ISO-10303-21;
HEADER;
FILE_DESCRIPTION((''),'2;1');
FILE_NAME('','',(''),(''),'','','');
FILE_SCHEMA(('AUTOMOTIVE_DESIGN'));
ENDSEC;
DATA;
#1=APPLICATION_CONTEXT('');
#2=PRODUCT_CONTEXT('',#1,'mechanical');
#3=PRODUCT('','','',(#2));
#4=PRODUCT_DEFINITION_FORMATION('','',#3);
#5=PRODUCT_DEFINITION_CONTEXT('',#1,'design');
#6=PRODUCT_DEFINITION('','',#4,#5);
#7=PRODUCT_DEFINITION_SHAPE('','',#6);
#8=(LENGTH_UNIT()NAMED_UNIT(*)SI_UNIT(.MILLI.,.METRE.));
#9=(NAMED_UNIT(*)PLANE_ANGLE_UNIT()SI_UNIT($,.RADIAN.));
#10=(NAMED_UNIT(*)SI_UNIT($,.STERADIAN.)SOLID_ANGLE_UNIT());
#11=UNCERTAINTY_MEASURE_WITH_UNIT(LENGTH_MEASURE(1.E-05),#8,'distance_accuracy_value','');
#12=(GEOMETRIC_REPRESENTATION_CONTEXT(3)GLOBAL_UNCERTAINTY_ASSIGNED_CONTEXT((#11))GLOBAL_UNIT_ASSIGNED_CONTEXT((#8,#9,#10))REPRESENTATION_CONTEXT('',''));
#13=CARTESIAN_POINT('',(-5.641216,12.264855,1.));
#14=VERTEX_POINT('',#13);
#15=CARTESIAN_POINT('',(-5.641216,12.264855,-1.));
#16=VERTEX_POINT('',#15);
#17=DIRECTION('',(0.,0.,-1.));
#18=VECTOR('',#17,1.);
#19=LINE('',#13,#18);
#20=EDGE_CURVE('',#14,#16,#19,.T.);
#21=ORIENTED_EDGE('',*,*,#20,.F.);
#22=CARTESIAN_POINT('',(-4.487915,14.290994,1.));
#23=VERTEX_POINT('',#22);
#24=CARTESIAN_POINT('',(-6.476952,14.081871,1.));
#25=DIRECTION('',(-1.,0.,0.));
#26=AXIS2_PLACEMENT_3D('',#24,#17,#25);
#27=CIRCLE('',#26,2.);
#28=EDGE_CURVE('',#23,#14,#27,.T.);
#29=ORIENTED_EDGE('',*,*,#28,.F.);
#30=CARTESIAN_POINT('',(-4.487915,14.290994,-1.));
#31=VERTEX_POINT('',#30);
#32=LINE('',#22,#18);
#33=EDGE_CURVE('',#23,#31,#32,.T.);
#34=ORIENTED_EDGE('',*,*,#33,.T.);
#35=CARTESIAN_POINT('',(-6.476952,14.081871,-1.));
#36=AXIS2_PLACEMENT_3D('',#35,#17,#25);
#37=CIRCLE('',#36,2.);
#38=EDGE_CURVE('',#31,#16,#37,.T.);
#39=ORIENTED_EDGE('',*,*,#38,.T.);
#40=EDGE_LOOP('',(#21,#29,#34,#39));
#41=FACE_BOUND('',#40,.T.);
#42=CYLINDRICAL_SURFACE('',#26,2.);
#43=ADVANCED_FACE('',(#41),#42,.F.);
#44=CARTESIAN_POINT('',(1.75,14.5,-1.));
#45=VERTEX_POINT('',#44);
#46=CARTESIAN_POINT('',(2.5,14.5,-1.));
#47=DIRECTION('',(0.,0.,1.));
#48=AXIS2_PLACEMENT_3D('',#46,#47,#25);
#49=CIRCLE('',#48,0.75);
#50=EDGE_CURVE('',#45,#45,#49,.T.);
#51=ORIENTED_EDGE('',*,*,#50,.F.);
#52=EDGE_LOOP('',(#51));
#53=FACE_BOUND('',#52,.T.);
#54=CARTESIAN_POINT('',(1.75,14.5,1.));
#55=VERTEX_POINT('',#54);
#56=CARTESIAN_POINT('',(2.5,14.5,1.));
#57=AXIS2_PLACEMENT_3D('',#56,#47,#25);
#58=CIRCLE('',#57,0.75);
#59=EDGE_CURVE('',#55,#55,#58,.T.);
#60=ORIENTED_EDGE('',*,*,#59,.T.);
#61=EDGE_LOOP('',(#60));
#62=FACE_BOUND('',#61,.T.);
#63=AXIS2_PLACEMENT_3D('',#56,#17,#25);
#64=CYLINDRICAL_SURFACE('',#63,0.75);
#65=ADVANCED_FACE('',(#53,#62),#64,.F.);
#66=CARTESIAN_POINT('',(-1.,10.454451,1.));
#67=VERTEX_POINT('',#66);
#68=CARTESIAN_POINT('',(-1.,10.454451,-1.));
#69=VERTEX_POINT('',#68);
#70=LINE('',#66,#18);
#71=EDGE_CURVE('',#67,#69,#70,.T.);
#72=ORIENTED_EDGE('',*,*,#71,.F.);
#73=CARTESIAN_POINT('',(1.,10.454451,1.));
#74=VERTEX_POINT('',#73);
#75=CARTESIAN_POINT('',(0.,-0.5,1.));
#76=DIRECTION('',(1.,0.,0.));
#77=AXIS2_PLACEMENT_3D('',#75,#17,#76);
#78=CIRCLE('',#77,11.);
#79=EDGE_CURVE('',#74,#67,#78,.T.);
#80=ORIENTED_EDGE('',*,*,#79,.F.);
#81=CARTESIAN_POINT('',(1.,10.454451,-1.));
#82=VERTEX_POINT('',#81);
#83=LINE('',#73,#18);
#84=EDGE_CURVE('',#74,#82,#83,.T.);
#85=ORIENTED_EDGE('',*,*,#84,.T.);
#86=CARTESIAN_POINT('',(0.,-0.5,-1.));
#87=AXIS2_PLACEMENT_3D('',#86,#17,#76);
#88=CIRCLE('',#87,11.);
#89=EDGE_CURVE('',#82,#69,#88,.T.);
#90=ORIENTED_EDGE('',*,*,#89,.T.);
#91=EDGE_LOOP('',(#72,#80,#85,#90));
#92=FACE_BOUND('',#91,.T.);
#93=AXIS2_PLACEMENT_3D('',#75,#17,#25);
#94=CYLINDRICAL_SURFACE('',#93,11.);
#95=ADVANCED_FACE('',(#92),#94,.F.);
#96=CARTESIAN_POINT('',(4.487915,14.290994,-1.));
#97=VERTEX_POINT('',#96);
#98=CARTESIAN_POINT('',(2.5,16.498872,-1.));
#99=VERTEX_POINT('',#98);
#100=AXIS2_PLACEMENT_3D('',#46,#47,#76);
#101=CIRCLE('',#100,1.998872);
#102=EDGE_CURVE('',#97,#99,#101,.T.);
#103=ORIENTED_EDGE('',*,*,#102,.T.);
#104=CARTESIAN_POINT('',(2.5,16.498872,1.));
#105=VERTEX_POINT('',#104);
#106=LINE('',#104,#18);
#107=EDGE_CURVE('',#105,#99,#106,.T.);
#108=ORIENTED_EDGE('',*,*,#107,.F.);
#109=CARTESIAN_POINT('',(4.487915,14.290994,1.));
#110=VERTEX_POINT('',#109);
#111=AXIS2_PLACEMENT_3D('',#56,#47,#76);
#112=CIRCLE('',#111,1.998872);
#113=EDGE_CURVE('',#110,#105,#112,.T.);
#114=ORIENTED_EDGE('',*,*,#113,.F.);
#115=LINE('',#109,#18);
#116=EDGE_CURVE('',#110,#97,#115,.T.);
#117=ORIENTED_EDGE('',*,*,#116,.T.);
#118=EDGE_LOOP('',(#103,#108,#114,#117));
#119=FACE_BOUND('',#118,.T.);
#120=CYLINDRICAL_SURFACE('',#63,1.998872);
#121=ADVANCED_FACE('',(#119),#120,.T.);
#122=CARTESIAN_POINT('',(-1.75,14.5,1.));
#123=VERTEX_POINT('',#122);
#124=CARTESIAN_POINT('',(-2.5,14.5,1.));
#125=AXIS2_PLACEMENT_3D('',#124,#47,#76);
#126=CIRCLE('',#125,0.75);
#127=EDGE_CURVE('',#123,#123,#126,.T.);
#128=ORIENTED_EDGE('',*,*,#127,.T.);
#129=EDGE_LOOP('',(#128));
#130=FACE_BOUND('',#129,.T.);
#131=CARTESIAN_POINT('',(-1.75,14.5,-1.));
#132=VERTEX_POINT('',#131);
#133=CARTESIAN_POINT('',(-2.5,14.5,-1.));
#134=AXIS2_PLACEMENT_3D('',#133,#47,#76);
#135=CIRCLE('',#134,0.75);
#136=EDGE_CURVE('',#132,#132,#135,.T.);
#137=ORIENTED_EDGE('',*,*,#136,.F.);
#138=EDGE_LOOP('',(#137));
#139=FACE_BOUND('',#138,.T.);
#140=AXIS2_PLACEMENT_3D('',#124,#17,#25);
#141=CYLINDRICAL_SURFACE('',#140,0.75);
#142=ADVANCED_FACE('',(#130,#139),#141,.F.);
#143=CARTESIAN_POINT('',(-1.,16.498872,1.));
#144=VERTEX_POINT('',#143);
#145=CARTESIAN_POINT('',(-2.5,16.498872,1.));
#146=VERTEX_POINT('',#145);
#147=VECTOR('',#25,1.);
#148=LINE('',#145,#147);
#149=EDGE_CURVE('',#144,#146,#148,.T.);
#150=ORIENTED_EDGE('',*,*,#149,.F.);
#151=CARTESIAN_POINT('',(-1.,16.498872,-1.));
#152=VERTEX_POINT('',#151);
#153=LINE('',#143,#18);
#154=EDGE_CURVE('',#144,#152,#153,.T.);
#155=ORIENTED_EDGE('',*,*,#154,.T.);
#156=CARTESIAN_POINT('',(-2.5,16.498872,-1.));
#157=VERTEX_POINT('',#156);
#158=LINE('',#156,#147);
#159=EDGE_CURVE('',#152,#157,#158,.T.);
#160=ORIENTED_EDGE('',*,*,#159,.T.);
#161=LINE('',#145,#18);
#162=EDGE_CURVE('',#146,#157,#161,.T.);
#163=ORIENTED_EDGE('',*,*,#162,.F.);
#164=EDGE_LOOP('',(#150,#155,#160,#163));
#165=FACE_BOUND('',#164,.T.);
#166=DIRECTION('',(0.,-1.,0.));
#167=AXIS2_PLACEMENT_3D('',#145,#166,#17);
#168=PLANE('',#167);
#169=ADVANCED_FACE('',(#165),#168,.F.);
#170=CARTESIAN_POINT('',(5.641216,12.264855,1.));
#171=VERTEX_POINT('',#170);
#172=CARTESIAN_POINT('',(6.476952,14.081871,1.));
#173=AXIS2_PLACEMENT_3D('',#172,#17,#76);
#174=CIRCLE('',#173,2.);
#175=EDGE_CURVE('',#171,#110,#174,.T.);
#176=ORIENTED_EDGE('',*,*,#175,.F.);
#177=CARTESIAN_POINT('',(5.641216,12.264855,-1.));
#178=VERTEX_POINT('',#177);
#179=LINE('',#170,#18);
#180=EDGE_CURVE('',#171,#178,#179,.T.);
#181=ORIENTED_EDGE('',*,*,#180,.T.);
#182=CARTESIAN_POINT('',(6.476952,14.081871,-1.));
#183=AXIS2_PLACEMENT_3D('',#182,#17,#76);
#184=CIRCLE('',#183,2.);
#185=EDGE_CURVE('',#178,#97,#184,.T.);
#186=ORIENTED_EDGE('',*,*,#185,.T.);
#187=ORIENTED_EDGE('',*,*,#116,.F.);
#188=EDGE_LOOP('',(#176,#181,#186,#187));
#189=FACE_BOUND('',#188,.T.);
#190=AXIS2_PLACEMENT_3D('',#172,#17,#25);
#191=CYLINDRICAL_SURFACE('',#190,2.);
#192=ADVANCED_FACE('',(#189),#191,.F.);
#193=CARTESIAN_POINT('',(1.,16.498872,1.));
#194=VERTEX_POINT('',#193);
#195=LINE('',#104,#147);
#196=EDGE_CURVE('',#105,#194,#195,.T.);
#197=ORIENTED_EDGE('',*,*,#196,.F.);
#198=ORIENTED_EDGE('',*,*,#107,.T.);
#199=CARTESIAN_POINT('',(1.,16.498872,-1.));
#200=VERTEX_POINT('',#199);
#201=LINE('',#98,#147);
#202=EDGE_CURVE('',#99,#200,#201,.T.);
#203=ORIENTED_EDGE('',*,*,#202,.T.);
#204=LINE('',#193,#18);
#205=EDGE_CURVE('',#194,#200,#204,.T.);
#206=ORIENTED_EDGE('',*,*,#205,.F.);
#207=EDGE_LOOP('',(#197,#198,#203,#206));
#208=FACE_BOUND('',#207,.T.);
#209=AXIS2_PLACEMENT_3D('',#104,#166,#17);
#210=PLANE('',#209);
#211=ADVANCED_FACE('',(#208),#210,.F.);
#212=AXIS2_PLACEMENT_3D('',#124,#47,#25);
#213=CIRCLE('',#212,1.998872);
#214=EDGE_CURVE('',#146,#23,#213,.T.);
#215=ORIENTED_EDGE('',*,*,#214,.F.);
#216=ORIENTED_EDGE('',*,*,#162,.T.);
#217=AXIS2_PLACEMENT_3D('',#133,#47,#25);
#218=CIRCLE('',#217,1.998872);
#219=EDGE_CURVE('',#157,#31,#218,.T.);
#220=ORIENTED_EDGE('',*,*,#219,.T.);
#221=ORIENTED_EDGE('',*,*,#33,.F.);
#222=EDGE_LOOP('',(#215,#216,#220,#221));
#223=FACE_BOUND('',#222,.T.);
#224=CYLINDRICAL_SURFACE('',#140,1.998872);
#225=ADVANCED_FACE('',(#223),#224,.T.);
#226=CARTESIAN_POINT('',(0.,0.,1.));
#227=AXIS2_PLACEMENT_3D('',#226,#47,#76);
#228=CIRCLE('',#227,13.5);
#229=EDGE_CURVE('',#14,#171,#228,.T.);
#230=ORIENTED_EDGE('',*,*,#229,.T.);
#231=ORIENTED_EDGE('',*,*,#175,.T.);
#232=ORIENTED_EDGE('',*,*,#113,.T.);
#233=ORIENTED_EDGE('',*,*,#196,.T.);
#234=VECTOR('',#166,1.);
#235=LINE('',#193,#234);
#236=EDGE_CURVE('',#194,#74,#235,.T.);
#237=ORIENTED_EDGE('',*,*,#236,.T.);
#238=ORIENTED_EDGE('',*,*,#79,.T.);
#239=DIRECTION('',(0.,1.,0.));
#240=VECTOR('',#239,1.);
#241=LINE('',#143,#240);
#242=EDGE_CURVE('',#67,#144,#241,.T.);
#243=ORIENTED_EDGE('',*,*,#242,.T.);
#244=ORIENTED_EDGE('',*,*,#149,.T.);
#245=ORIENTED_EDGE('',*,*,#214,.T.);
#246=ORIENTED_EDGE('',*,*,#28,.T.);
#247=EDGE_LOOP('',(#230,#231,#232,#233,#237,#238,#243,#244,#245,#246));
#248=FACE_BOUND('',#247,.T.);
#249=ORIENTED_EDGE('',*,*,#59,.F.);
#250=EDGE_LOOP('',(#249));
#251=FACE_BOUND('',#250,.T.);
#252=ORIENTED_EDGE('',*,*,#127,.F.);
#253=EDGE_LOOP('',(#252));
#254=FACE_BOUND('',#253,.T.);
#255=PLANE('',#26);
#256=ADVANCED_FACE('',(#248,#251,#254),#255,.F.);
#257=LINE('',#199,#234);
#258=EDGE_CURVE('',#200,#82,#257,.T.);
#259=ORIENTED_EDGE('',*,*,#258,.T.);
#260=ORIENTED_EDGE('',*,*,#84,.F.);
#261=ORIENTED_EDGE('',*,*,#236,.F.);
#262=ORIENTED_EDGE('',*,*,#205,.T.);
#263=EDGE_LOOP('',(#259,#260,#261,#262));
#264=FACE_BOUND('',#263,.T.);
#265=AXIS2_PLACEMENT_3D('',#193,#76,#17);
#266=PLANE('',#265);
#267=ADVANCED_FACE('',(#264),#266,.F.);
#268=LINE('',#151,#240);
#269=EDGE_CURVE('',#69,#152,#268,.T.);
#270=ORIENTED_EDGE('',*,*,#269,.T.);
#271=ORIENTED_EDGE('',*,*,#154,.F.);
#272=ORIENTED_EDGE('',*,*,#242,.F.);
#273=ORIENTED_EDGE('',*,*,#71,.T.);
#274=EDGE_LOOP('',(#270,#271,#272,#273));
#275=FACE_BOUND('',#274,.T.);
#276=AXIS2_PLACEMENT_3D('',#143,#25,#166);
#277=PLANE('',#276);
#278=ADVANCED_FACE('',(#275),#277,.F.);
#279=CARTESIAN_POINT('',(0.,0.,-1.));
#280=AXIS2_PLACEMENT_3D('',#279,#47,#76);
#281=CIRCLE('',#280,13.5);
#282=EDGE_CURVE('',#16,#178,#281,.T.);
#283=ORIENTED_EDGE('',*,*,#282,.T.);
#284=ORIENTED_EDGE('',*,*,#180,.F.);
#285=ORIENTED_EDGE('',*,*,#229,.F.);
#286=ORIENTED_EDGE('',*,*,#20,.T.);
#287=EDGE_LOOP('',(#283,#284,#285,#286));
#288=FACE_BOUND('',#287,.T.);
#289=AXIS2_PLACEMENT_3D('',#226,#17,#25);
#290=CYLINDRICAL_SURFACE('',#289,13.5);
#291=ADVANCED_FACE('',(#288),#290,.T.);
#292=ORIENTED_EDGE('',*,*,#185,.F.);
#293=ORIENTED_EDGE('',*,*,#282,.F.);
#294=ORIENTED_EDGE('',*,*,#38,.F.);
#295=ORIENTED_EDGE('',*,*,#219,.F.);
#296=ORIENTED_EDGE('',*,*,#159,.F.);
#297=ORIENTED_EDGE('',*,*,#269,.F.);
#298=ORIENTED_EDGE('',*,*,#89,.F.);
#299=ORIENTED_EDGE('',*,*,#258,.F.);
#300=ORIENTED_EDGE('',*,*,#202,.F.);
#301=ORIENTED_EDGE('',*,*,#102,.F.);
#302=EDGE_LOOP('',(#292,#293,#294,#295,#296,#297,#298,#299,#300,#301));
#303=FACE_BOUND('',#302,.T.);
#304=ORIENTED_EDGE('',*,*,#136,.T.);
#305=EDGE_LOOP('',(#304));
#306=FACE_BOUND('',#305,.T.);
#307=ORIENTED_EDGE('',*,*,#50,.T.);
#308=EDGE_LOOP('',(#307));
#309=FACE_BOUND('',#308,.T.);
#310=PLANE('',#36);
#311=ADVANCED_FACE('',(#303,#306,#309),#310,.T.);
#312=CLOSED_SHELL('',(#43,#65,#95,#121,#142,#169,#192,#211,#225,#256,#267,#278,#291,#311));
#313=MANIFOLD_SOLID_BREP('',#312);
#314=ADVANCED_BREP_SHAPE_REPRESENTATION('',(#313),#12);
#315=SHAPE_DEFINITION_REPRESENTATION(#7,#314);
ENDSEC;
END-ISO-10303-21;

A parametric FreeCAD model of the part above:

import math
import FreeCAD as App
import Part
import Sketcher

V = App.Vector
Q = App.Units.Quantity

doc = App.newDocument("Part")
body = doc.addObject("PartDesign::Body", "Body")

sketch1 = body.newObject("Sketcher::SketchObject", "Sketch")
sketch1.AttachmentSupport = (doc.getObject("XY_Plane"), [""])
sketch1.MapMode = "FlatFace"
sketch1.addGeometry([
    Part.LineSegment(V(-1, 16.5, 0), V(-2.5, 16.5, 0)),
    Part.ArcOfCircle(Part.Circle(V(-2.5, 14.5, 0), V(0, 0, 1), 2), math.radians(90), math.radians(186)),
    Part.ArcOfCircle(Part.Circle(V(-6.5, 14.1, 0), V(0, 0, 1), 2), math.radians(-65), math.radians(6)),
    Part.ArcOfCircle(Part.Circle(V(0, 0, 0), V(0, 0, 1), 13.5), math.radians(115), math.radians(425)),
    Part.ArcOfCircle(Part.Circle(V(6.5, 14.1, 0), V(0, 0, 1), 2), math.radians(174), math.radians(245)),
    Part.ArcOfCircle(Part.Circle(V(2.5, 14.5, 0), V(0, 0, 1), 2), math.radians(-6), math.radians(90)),
    Part.LineSegment(V(2.5, 16.5, 0), V(1, 16.5, 0)),
    Part.LineSegment(V(1, 16.5, 0), V(1, 10.5, 0)),
    Part.ArcOfCircle(Part.Circle(V(0, -0.5, 0), V(0, 0, 1), 11), math.radians(95), math.radians(445)),
    Part.LineSegment(V(-1, 10.5, 0), V(-1, 16.5, 0)),
    Part.Circle(V(2.5, 14.5, 0), V(0, 0, 1), 0.8),
    Part.Circle(V(-2.5, 14.5, 0), V(0, 0, 1), 0.8),
], False)
sketch1.addConstraint([
    Sketcher.Constraint("Tangent", 0, 2, 1, 1),
    Sketcher.Constraint("Tangent", 1, 2, 2, 2),
    Sketcher.Constraint("Tangent", 2, 1, 3, 1),
    Sketcher.Constraint("Tangent", 3, 2, 4, 2),
    Sketcher.Constraint("Tangent", 4, 1, 5, 1),
    Sketcher.Constraint("Tangent", 5, 2, 6, 1),
    Sketcher.Constraint("Coincident", 6, 2, 7, 1),
    Sketcher.Constraint("Coincident", 7, 2, 8, 2),
    Sketcher.Constraint("Coincident", 8, 1, 9, 1),
    Sketcher.Constraint("Coincident", 9, 2, 0, 1),
    Sketcher.Constraint("Horizontal", 0),
    Sketcher.Constraint("Horizontal", 6),
    Sketcher.Constraint("Vertical", 7),
    Sketcher.Constraint("Vertical", 9),
    Sketcher.Constraint("Coincident", 3, 3, -1, 1),
    Sketcher.Constraint("Coincident", 10, 3, 5, 3),
    Sketcher.Constraint("Coincident", 11, 3, 1, 3),
    Sketcher.Constraint("Equal", 2, 4),
    Sketcher.Constraint("Equal", 1, 5),
    Sketcher.Constraint("Equal", 10, 11),
    Sketcher.Constraint("Symmetric", 1, 3, 5, 3, -2),
    Sketcher.Constraint("Symmetric", 7, 2, 8, 1, -2),
    Sketcher.Constraint("Radius", 2, Q("2 mm")),
    Sketcher.Constraint("Radius", 8, Q("11 mm")),
    Sketcher.Constraint("Diameter", 10, Q("1.5 mm")),
    Sketcher.Constraint("Radius", 3, Q("13.5 mm")),
    Sketcher.Constraint("DistanceX", 0, 2, 0, 1, Q("1.5 mm")),
    Sketcher.Constraint("DistanceX", -1, 1, 6, 2, Q("1 mm")),
    Sketcher.Constraint("DistanceY", 8, 3, 1, 3, Q("15 mm")),
    Sketcher.Constraint("DistanceY", -1, 1, 1, 3, Q("14.5 mm")),
    Sketcher.Constraint("Radius", 1, Q("1.998872 mm")),
])
pad1 = body.newObject("PartDesign::Pad", "Pad")
pad1.Profile = sketch1
pad1.Length = 2
pad1.Midplane = True

doc.recompute()
